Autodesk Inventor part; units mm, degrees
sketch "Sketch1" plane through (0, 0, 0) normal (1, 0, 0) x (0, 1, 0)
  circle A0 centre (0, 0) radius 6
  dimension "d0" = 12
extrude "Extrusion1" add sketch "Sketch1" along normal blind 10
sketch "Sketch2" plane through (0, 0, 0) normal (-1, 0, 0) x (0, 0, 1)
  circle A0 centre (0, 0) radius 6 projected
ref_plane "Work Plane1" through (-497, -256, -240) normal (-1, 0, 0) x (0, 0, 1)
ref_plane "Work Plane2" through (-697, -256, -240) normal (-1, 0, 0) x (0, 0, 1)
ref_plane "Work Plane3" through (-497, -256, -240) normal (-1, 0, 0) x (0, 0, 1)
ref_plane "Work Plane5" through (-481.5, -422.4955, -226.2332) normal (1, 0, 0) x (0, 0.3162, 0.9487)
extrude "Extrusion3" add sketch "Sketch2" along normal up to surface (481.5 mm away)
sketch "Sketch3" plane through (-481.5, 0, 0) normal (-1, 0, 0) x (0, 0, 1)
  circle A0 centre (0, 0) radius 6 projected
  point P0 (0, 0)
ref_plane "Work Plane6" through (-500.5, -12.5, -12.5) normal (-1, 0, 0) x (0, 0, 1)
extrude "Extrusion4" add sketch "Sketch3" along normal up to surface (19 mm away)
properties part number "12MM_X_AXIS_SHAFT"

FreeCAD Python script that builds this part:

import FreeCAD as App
import Part
import Sketcher
Q = App.Units.Quantity

doc = App.newDocument("Part")
body = doc.addObject("PartDesign::Body", "Body")

# Sketch on YZ plane
sketch1 = doc.addObject("Sketcher::SketchObject", "Sketch")
body.addObject(sketch1)
sketch1.AttachmentSupport = (doc.YZ_Plane, [""])
sketch1.MapMode = "FlatFace"
sketch1.addGeometry(Part.Circle(App.Vector(0, 0, 0), App.Vector(0, 0, 1), 6), False)
sketch1.addConstraint(Sketcher.Constraint("Coincident", 0, 3, -1, 1))
sketch1.addConstraint(Sketcher.Constraint("Diameter", 0, Q("12 mm")))
pad1 = doc.addObject("PartDesign::Pad", "Pad")
body.addObject(pad1)
pad1.Profile = sketch1
pad1.Length = 10

# Sketch on YZ plane
sketch2 = doc.addObject("Sketcher::SketchObject", "Sketch001")
body.addObject(sketch2)
sketch2.AttachmentSupport = (doc.YZ_Plane, [""])
sketch2.MapMode = "FlatFace"
sketch2.addGeometry(Part.Circle(App.Vector(0, 0, 0), App.Vector(0, 0, 1), 6), False)
sketch2.addConstraint(Sketcher.Constraint("Coincident", 0, 3, -1, 1))
sketch2.addConstraint(Sketcher.Constraint("Diameter", 0, Q("12 mm")))
pad2 = doc.addObject("PartDesign::Pad", "Pad001")
body.addObject(pad2)
pad2.Profile = sketch2
pad2.Length = 481.5
pad2.Reversed = True

# Sketch on YZ plane
sketch3 = doc.addObject("Sketcher::SketchObject", "Sketch002")
body.addObject(sketch3)
sketch3.AttachmentSupport = (doc.YZ_Plane, [""])
sketch3.MapMode = "FlatFace"
sketch3.AttachmentOffset = App.Placement(App.Vector(0, 0, -481.5), App.Rotation())
sketch3.addGeometry(Part.Circle(App.Vector(0, 0, 0), App.Vector(0, 0, 1), 6), False)
sketch3.addConstraint(Sketcher.Constraint("Coincident", 0, 3, -1, 1))
sketch3.addConstraint(Sketcher.Constraint("Diameter", 0, Q("12 mm")))
pad3 = doc.addObject("PartDesign::Pad", "Pad002")
body.addObject(pad3)
pad3.Profile = sketch3
pad3.Length = 19
pad3.Reversed = True

doc.recompute()
